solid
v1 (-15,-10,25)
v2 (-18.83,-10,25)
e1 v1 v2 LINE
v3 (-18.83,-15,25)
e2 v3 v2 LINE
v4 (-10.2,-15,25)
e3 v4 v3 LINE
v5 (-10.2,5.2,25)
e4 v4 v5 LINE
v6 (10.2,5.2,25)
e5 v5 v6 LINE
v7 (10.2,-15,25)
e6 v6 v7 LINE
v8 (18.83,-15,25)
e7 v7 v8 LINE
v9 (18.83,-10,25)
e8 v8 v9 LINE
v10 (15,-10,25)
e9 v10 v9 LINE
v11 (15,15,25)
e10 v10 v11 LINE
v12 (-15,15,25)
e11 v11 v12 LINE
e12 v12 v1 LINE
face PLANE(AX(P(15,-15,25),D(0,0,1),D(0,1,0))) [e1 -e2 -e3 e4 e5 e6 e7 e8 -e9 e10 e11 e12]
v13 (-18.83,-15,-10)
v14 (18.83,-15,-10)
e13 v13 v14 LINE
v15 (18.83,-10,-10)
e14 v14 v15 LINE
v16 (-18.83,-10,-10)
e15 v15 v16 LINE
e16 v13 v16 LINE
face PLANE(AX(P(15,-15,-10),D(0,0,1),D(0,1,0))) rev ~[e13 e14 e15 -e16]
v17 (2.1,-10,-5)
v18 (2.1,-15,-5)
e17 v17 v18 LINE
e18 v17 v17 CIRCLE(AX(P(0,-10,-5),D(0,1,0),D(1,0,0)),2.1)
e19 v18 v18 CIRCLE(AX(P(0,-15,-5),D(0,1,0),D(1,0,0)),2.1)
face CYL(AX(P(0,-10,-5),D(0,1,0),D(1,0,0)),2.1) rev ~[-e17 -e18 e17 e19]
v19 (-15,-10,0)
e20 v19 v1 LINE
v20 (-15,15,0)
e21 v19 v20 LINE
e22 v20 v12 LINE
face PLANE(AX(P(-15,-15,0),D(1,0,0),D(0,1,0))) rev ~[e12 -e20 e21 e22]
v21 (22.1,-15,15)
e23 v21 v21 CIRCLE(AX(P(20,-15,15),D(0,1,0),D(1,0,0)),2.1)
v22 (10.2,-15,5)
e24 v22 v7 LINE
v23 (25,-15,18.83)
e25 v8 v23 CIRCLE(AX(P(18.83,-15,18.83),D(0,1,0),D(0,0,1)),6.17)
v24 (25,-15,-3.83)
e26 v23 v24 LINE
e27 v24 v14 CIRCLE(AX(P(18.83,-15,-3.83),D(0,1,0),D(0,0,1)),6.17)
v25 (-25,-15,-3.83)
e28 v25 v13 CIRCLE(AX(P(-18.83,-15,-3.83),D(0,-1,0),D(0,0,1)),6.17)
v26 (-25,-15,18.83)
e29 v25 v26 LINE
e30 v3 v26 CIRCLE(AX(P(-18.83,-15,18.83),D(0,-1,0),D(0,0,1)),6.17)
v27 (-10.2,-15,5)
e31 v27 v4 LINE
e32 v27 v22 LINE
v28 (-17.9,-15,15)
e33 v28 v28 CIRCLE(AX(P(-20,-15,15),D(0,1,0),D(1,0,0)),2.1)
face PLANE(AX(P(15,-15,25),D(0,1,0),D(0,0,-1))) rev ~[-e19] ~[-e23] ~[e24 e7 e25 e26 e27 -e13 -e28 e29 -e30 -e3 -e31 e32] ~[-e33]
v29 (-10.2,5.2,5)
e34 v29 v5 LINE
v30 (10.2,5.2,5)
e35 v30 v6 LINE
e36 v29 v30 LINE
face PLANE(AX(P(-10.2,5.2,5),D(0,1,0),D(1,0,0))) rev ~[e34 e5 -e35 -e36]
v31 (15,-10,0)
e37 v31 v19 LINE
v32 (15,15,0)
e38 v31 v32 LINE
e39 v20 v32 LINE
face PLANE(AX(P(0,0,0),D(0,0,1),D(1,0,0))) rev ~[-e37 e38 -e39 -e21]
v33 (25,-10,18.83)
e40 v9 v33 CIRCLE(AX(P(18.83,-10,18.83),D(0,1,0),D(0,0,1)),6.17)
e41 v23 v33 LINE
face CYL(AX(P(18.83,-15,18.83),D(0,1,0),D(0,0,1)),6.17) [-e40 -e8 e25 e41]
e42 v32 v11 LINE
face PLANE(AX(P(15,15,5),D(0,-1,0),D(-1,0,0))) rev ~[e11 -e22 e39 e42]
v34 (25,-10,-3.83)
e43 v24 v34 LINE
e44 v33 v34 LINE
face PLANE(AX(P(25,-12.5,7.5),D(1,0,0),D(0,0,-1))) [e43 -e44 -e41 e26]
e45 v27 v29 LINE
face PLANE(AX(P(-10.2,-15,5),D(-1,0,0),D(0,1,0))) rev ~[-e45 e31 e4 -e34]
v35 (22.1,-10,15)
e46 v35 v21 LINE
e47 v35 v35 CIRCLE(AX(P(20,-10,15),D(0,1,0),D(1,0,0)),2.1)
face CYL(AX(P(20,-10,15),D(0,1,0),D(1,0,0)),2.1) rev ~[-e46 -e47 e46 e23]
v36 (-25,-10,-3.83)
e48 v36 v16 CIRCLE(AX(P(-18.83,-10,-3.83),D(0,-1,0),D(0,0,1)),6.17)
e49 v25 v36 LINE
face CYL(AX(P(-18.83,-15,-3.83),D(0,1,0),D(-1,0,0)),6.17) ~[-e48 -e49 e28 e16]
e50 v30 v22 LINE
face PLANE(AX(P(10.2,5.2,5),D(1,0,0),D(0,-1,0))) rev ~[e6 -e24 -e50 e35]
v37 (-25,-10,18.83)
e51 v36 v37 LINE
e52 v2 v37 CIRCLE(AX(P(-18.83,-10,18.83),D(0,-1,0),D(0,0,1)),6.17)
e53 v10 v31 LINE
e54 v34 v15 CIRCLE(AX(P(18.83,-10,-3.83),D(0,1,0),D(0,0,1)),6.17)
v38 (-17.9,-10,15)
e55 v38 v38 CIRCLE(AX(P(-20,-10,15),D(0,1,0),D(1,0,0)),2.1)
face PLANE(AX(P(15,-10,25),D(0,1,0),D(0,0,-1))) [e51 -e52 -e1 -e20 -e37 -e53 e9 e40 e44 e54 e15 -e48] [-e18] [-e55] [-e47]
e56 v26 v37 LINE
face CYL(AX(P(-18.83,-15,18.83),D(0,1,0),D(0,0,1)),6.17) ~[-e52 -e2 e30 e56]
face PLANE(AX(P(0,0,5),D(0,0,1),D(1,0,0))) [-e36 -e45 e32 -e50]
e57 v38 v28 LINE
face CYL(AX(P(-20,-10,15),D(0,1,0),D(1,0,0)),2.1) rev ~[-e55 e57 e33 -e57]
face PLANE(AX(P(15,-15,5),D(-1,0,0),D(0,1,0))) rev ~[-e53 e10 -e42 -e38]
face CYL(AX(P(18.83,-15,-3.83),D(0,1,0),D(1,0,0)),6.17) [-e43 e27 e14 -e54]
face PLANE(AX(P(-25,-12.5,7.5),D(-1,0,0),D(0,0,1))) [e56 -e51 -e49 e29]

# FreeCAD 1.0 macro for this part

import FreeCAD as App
import Part
import Sketcher
from FreeCAD import Vector


def edges_at(feature, points):
    """Names of the edges that pass closest to the given points."""
    edges = feature.Shape.Edges
    near = lambda p: min(range(len(edges)), key=lambda i: edges[i].distToShape(Part.Vertex(*p))[0])
    return sorted({f"Edge{near(p) + 1}" for p in points})

doc = App.newDocument("Part")
params = doc.addObject("Spreadsheet::Sheet", "Params")
for row, (alias, value) in enumerate([
    ("sketch1_width", "30 mm"),
    ("pad1_length", "5 mm"),
    ("sketch2_width", "30 mm"),
    ("sketch2_height", "5 mm"),
    ("pad2_length", "10 mm"),
    ("sketch3_diameter", "4.2 mm"),
    ("pocket1_length", "5 mm"),
    ("sketch4_width", "30 mm"),
    ("sketch4_width2", "4.8 mm"),
    ("sketch4_height", "20.2 mm"),
    ("pad3_length", "20 mm"),
    ("sketch5_width", "5 mm"),
    ("sketch5_height", "35 mm"),
    ("pad4_length", "10 mm"),
    ("sketch6_width", "5 mm"),
    ("sketch6_height", "35 mm"),
    ("pad5_length", "10 mm"),
    ("sketch7_diameter", "4.2 mm"),
    ("pocket2_length", "10 mm"),
    ("fillet_radius", "6.17 mm"),
    ("fillet2_radius", "6.17 mm"),
    ("fillet3_radius", "6.17 mm"),
    ("fillet4_radius", "6.17 mm"),
], start=1):
    params.set(f"A{row}", alias)
    params.set(f"B{row}", "=" + value)
    params.setAlias(f"B{row}", alias)

body = doc.addObject("PartDesign::Body", "Body")

# Sketch on XY plane
sketch1 = body.newObject("Sketcher::SketchObject", "Sketch")
sketch1.AttachmentSupport = (doc.getObject("XY_Plane"), [""])
sketch1.MapMode = "FlatFace"
sketch1.addGeometry(Part.LineSegment(Vector(-15, 15, 0), Vector(-15, -15, 0)), False)
sketch1.addGeometry(Part.LineSegment(Vector(-15, -15, 0), Vector(15, -15, 0)), False)
sketch1.addGeometry(Part.LineSegment(Vector(15, -15, 0), Vector(15, 15, 0)), False)
sketch1.addGeometry(Part.LineSegment(Vector(15, 15, 0), Vector(-15, 15, 0)), False)
sketch1.addConstraint(Sketcher.Constraint("Coincident", 0, 2, 1, 1))
sketch1.addConstraint(Sketcher.Constraint("Coincident", 1, 2, 2, 1))
sketch1.addConstraint(Sketcher.Constraint("Coincident", 2, 2, 3, 1))
sketch1.addConstraint(Sketcher.Constraint("Coincident", 3, 2, 0, 1))
sketch1.addConstraint(Sketcher.Constraint("Vertical", 0))
sketch1.addConstraint(Sketcher.Constraint("Horizontal", 1))
sketch1.addConstraint(Sketcher.Constraint("Vertical", 2))
sketch1.addConstraint(Sketcher.Constraint("Horizontal", 3))
sketch1.addConstraint(Sketcher.Constraint("Symmetric", 0, 2, 2, 2, -1, 1))
sketch1.addConstraint(Sketcher.Constraint("Equal", 3, 0))
sketch1.addConstraint(Sketcher.Constraint("DistanceX", 1, 1, 1, 2, 30.0))
sketch1.setExpression("Constraints[10]", "Params.sketch1_width")
pad1 = body.newObject("PartDesign::Pad", "Pad")
pad1.Profile = sketch1
pad1.setExpression("Length", "Params.pad1_length")

# Sketch on XY plane
sketch2 = body.newObject("Sketcher::SketchObject", "Sketch001")
sketch2.AttachmentSupport = (doc.getObject("XY_Plane"), [""])
sketch2.MapMode = "FlatFace"
sketch2.addGeometry(Part.LineSegment(Vector(15, -10, 0), Vector(15, -15, 0)), False)
sketch2.addGeometry(Part.LineSegment(Vector(15, -15, 0), Vector(-15, -15, 0)), False)
sketch2.addGeometry(Part.LineSegment(Vector(-15, -15, 0), Vector(-15, -10, 0)), False)
sketch2.addGeometry(Part.LineSegment(Vector(-15, -10, 0), Vector(15, -10, 0)), False)
sketch2.addConstraint(Sketcher.Constraint("Coincident", 0, 2, 1, 1))
sketch2.addConstraint(Sketcher.Constraint("Coincident", 1, 2, 2, 1))
sketch2.addConstraint(Sketcher.Constraint("Coincident", 2, 2, 3, 1))
sketch2.addConstraint(Sketcher.Constraint("Coincident", 3, 2, 0, 1))
sketch2.addConstraint(Sketcher.Constraint("Vertical", 0))
sketch2.addConstraint(Sketcher.Constraint("Horizontal", 1))
sketch2.addConstraint(Sketcher.Constraint("Vertical", 2))
sketch2.addConstraint(Sketcher.Constraint("Horizontal", 3))
sketch2.addConstraint(Sketcher.Constraint("DistanceX", 1, 2, 1, 1, 30.0))
sketch2.addConstraint(Sketcher.Constraint("DistanceY", 0, 2, 0, 1, 5.0))
sketch2.addConstraint(Sketcher.Constraint("DistanceX", -1, 1, 0, 2, 15.0))
sketch2.addConstraint(Sketcher.Constraint("DistanceY", 0, 2, -1, 1, 15.0))
sketch2.setExpression("Constraints[8]", "Params.sketch2_width")
sketch2.setExpression("Constraints[9]", "Params.sketch2_height")
pad2 = body.newObject("PartDesign::Pad", "Pad001")
pad2.Profile = sketch2
pad2.setExpression("Length", "Params.pad2_length")
pad2.Reversed = True

# Sketch on XZ plane
sketch3 = body.newObject("Sketcher::SketchObject", "Sketch002")
sketch3.AttachmentSupport = (doc.getObject("XZ_Plane"), [""])
sketch3.MapMode = "FlatFace"
sketch3.AttachmentOffset = App.Placement(Vector(0, 0, 10), App.Rotation())
sketch3.addGeometry(Part.Circle(Vector(0, -5, 0), Vector(0, 0, 1), 2.1), False)
sketch3.addConstraint(Sketcher.Constraint("PointOnObject", 0, 3, -2))
sketch3.addConstraint(Sketcher.Constraint("Diameter", 0, 4.2))
sketch3.addConstraint(Sketcher.Constraint("DistanceY", 0, 3, -1, 1, 5.0))
sketch3.setExpression("Constraints[1]", "Params.sketch3_diameter")
pocket1 = body.newObject("PartDesign::Pocket", "Pocket")
pocket1.Profile = sketch3
pocket1.setExpression("Length", "Params.pocket1_length")
pocket1.Reversed = True

# Sketch on XY plane
sketch4 = body.newObject("Sketcher::SketchObject", "Sketch003")
sketch4.AttachmentSupport = (doc.getObject("XY_Plane"), [""])
sketch4.MapMode = "FlatFace"
sketch4.AttachmentOffset = App.Placement(Vector(0, 0, 5), App.Rotation())
sketch4.addGeometry(Part.LineSegment(Vector(10.2, -15, 0), Vector(15, -15, 0)), False)
sketch4.addGeometry(Part.LineSegment(Vector(15, -15, 0), Vector(15, 15, 0)), False)
sketch4.addGeometry(Part.LineSegment(Vector(15, 15, 0), Vector(-15, 15, 0)), False)
sketch4.addGeometry(Part.LineSegment(Vector(-15, 15, 0), Vector(-15, -15, 0)), False)
sketch4.addGeometry(Part.LineSegment(Vector(-15, -15, 0), Vector(-10.2, -15, 0)), False)
sketch4.addGeometry(Part.LineSegment(Vector(-10.2, -15, 0), Vector(-10.2, 5.2, 0)), False)
sketch4.addGeometry(Part.LineSegment(Vector(-10.2, 5.2, 0), Vector(10.2, 5.2, 0)), False)
sketch4.addGeometry(Part.LineSegment(Vector(10.2, 5.2, 0), Vector(10.2, -15, 0)), False)
sketch4.addConstraint(Sketcher.Constraint("Coincident", 0, 2, 1, 1))
sketch4.addConstraint(Sketcher.Constraint("Coincident", 1, 2, 2, 1))
sketch4.addConstraint(Sketcher.Constraint("Coincident", 2, 2, 3, 1))
sketch4.addConstraint(Sketcher.Constraint("Coincident", 3, 2, 4, 1))
sketch4.addConstraint(Sketcher.Constraint("Coincident", 4, 2, 5, 1))
sketch4.addConstraint(Sketcher.Constraint("Coincident", 5, 2, 6, 1))
sketch4.addConstraint(Sketcher.Constraint("Coincident", 6, 2, 7, 1))
sketch4.addConstraint(Sketcher.Constraint("Coincident", 7, 2, 0, 1))
sketch4.addConstraint(Sketcher.Constraint("Horizontal", 0))
sketch4.addConstraint(Sketcher.Constraint("Vertical", 1))
sketch4.addConstraint(Sketcher.Constraint("Horizontal", 2))
sketch4.addConstraint(Sketcher.Constraint("Vertical", 3))
sketch4.addConstraint(Sketcher.Constraint("Horizontal", 4))
sketch4.addConstraint(Sketcher.Constraint("Vertical", 5))
sketch4.addConstraint(Sketcher.Constraint("Horizontal", 6))
sketch4.addConstraint(Sketcher.Constraint("Vertical", 7))
sketch4.addConstraint(Sketcher.Constraint("Symmetric", 0, 2, 2, 2, -1, 1))
sketch4.addConstraint(Sketcher.Constraint("Symmetric", 4, 2, 7, 2, -2))
sketch4.addConstraint(Sketcher.Constraint("Equal", 2, 1))
sketch4.addConstraint(Sketcher.Constraint("DistanceX", 2, 2, 2, 1, 30.0))
sketch4.addConstraint(Sketcher.Constraint("DistanceX", 0, 1, 0, 2, 4.8))
sketch4.addConstraint(Sketcher.Constraint("DistanceY", 5, 1, 5, 2, 20.2))
sketch4.setExpression("Constraints[19]", "Params.sketch4_width")
sketch4.setExpression("Constraints[20]", "Params.sketch4_width2")
sketch4.setExpression("Constraints[21]", "Params.sketch4_height")
pad3 = body.newObject("PartDesign::Pad", "Pad002")
pad3.Profile = sketch4
pad3.setExpression("Length", "Params.pad3_length")

# Sketch on YZ plane
sketch5 = body.newObject("Sketcher::SketchObject", "Sketch004")
sketch5.AttachmentSupport = (doc.getObject("YZ_Plane"), [""])
sketch5.MapMode = "FlatFace"
sketch5.AttachmentOffset = App.Placement(Vector(0, 0, -15), App.Rotation())
sketch5.addGeometry(Part.LineSegment(Vector(-10, -10, 0), Vector(-15, -10, 0)), False)
sketch5.addGeometry(Part.LineSegment(Vector(-15, -10, 0), Vector(-15, 25, 0)), False)
sketch5.addGeometry(Part.LineSegment(Vector(-15, 25, 0), Vector(-10, 25, 0)), False)
sketch5.addGeometry(Part.LineSegment(Vector(-10, 25, 0), Vector(-10, -10, 0)), False)
sketch5.addConstraint(Sketcher.Constraint("Coincident", 0, 2, 1, 1))
sketch5.addConstraint(Sketcher.Constraint("Coincident", 1, 2, 2, 1))
sketch5.addConstraint(Sketcher.Constraint("Coincident", 2, 2, 3, 1))
sketch5.addConstraint(Sketcher.Constraint("Coincident", 3, 2, 0, 1))
sketch5.addConstraint(Sketcher.Constraint("Horizontal", 0))
sketch5.addConstraint(Sketcher.Constraint("Vertical", 1))
sketch5.addConstraint(Sketcher.Constraint("Horizontal", 2))
sketch5.addConstraint(Sketcher.Constraint("Vertical", 3))
sketch5.addConstraint(Sketcher.Constraint("DistanceX", 0, 2, 0, 1, 5.0))
sketch5.addConstraint(Sketcher.Constraint("DistanceY", 1, 1, 1, 2, 35.0))
sketch5.addConstraint(Sketcher.Constraint("DistanceX", 0, 2, -1, 1, 15.0))
sketch5.addConstraint(Sketcher.Constraint("DistanceY", 0, 2, -1, 1, 10.0))
sketch5.setExpression("Constraints[8]", "Params.sketch5_width")
sketch5.setExpression("Constraints[9]", "Params.sketch5_height")
pad4 = body.newObject("PartDesign::Pad", "Pad003")
pad4.Profile = sketch5
pad4.setExpression("Length", "Params.pad4_length")
pad4.Reversed = True

# Sketch on YZ plane
sketch6 = body.newObject("Sketcher::SketchObject", "Sketch005")
sketch6.AttachmentSupport = (doc.getObject("YZ_Plane"), [""])
sketch6.MapMode = "FlatFace"
sketch6.AttachmentOffset = App.Placement(Vector(0, 0, 15), App.Rotation())
sketch6.addGeometry(Part.LineSegment(Vector(-10, 25, 0), Vector(-15, 25, 0)), False)
sketch6.addGeometry(Part.LineSegment(Vector(-15, 25, 0), Vector(-15, -10, 0)), False)
sketch6.addGeometry(Part.LineSegment(Vector(-15, -10, 0), Vector(-10, -10, 0)), False)
sketch6.addGeometry(Part.LineSegment(Vector(-10, -10, 0), Vector(-10, 25, 0)), False)
sketch6.addConstraint(Sketcher.Constraint("Coincident", 0, 2, 1, 1))
sketch6.addConstraint(Sketcher.Constraint("Coincident", 1, 2, 2, 1))
sketch6.addConstraint(Sketcher.Constraint("Coincident", 2, 2, 3, 1))
sketch6.addConstraint(Sketcher.Constraint("Coincident", 3, 2, 0, 1))
sketch6.addConstraint(Sketcher.Constraint("Horizontal", 0))
sketch6.addConstraint(Sketcher.Constraint("Vertical", 1))
sketch6.addConstraint(Sketcher.Constraint("Horizontal", 2))
sketch6.addConstraint(Sketcher.Constraint("Vertical", 3))
sketch6.addConstraint(Sketcher.Constraint("DistanceX", 0, 2, 0, 1, 5.0))
sketch6.addConstraint(Sketcher.Constraint("DistanceY", 1, 2, 1, 1, 35.0))
sketch6.addConstraint(Sketcher.Constraint("DistanceX", 0, 2, -1, 1, 15.0))
sketch6.addConstraint(Sketcher.Constraint("DistanceY", -1, 1, 0, 2, 25.0))
sketch6.setExpression("Constraints[8]", "Params.sketch6_width")
sketch6.setExpression("Constraints[9]", "Params.sketch6_height")
pad5 = body.newObject("PartDesign::Pad", "Pad004")
pad5.Profile = sketch6
pad5.setExpression("Length", "Params.pad5_length")

# Sketch on XZ plane
sketch7 = body.newObject("Sketcher::SketchObject", "Sketch006")
sketch7.AttachmentSupport = (doc.getObject("XZ_Plane"), [""])
sketch7.MapMode = "FlatFace"
sketch7.AttachmentOffset = App.Placement(Vector(0, 0, 10), App.Rotation())
sketch7.addGeometry(Part.Circle(Vector(-20, 15, 0), Vector(0, 0, 1), 2.1), False)
sketch7.addGeometry(Part.Circle(Vector(20, 15, 0), Vector(0, 0, 1), 2.1), False)
sketch7.addConstraint(Sketcher.Constraint("Equal", 0, 1))
sketch7.addConstraint(Sketcher.Constraint("Symmetric", 0, 3, 1, 3, -2))
sketch7.addConstraint(Sketcher.Constraint("Diameter", 0, 4.2))
sketch7.addConstraint(Sketcher.Constraint("DistanceX", 0, 3, -1, 1, 20.0))
sketch7.addConstraint(Sketcher.Constraint("DistanceY", -1, 1, 0, 3, 15.0))
sketch7.setExpression("Constraints[2]", "Params.sketch7_diameter")
pocket2 = body.newObject("PartDesign::Pocket", "Pocket001")
pocket2.Profile = sketch7
pocket2.setExpression("Length", "Params.pocket2_length")
pocket2.Reversed = True
doc.recompute()

fillet = body.newObject("PartDesign::Fillet", "Fillet")
fillet.Base = (pocket2, edges_at(pocket2, [(25, -12.5, 25)]))
fillet.setExpression("Radius", "Params.fillet_radius")
doc.recompute()

fillet2 = body.newObject("PartDesign::Fillet", "Fillet001")
fillet2.Base = (fillet, edges_at(fillet, [(25, -12.5, -10)]))
fillet2.setExpression("Radius", "Params.fillet2_radius")
doc.recompute()

fillet3 = body.newObject("PartDesign::Fillet", "Fillet002")
fillet3.Base = (fillet2, edges_at(fillet2, [(-25, -12.5, 25)]))
fillet3.setExpression("Radius", "Params.fillet3_radius")
doc.recompute()

fillet4 = body.newObject("PartDesign::Fillet", "Fillet003")
fillet4.Base = (fillet3, edges_at(fillet3, [(-25, -12.5, -10)]))
fillet4.setExpression("Radius", "Params.fillet4_radius")

doc.recompute()
